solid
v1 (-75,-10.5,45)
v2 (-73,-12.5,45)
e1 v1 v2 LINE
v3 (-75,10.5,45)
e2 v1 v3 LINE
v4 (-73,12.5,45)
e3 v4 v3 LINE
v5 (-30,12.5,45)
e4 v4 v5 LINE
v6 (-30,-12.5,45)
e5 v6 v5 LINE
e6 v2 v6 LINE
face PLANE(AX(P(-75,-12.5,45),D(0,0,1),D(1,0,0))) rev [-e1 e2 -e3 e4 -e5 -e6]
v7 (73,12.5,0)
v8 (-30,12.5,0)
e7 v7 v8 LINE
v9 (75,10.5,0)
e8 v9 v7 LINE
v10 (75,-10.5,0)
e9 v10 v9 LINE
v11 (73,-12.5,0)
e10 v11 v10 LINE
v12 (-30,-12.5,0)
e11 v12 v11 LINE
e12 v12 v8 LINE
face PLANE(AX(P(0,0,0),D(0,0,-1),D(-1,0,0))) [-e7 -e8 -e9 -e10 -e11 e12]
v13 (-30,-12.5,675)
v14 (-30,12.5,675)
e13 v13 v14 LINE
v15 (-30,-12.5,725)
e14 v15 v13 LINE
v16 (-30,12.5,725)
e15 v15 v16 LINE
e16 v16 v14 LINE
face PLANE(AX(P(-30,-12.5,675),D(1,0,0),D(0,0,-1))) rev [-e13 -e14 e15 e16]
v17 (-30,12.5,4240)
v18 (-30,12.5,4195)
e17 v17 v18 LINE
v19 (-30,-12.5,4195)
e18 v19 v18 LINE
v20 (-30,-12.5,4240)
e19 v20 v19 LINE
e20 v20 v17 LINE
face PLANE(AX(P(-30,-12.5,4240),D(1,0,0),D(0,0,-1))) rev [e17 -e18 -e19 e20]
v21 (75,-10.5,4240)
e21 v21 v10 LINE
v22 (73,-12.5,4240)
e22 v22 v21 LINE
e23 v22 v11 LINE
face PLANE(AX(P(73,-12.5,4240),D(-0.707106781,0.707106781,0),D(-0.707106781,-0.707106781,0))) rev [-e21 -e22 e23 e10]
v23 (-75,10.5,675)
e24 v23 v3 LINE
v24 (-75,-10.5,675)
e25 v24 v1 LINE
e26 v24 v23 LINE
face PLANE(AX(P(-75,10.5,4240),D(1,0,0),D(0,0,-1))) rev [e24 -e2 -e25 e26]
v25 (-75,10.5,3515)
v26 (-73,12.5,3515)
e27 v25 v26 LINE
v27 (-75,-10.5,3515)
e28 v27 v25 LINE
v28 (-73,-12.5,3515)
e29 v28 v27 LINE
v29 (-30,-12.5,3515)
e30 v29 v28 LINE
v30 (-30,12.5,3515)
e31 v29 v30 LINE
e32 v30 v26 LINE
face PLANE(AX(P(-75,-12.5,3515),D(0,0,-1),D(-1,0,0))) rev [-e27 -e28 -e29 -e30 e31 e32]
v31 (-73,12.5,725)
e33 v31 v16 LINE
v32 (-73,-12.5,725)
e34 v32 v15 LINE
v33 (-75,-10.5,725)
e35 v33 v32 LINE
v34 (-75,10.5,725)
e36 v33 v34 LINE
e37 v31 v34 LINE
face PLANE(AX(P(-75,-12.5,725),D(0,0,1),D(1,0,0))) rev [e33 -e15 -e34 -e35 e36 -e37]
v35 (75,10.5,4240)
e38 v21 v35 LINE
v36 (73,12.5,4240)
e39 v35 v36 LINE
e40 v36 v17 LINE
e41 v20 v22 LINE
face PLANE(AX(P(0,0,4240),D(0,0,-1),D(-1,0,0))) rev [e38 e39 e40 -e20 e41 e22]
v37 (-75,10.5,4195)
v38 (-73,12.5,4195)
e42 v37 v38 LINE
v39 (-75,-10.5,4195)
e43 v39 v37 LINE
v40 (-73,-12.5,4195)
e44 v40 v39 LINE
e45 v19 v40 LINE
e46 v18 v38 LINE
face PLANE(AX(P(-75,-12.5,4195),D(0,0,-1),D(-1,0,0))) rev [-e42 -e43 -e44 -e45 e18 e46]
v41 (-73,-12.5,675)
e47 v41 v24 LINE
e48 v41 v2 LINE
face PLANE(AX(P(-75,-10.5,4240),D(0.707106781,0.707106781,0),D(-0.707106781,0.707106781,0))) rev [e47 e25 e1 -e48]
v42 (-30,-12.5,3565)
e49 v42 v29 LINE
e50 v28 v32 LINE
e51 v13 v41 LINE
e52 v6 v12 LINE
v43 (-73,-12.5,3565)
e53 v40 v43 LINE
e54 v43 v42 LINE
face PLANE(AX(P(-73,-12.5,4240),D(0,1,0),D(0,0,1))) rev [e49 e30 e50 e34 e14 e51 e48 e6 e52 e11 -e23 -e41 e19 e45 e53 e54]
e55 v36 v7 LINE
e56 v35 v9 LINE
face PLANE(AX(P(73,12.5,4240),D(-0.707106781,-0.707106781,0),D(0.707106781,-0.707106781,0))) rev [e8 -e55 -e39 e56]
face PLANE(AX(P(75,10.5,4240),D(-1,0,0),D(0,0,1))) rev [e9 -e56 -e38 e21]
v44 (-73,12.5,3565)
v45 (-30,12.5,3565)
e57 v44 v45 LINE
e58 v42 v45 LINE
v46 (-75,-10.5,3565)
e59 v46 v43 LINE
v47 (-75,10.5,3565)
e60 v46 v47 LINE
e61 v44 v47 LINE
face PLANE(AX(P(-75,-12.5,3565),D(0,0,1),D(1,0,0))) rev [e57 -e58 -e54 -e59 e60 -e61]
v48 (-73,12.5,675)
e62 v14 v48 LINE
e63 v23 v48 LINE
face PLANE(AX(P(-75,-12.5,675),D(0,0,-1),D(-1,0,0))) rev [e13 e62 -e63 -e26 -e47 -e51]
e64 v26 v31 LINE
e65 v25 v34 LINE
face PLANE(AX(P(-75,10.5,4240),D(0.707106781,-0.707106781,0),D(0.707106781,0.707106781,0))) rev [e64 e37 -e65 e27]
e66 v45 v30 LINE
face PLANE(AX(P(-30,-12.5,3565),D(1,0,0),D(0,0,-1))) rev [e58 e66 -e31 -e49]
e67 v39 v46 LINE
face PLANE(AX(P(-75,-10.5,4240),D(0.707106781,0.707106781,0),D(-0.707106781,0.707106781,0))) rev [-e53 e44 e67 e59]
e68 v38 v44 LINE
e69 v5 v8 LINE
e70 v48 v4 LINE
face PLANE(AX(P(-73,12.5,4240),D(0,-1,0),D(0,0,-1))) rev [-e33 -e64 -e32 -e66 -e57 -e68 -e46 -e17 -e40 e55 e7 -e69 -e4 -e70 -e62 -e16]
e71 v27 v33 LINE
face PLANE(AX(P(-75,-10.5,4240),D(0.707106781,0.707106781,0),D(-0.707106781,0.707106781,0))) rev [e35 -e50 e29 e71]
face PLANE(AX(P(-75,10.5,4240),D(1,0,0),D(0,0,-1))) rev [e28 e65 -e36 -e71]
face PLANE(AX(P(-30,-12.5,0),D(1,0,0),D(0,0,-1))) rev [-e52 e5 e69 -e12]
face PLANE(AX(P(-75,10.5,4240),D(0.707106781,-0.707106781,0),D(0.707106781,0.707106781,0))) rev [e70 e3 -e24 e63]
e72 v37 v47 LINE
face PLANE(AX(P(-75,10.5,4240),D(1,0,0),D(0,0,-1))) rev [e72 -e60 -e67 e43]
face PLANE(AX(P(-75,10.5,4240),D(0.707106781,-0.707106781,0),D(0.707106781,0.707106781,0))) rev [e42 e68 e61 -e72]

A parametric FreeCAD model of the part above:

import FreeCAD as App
import Part
import Sketcher
from FreeCAD import Vector

doc = App.newDocument("Part")
body = doc.addObject("PartDesign::Body", "Body")

# Sketch on XY plane
sketch1 = doc.addObject("Sketcher::SketchObject", "Sketch")
body.addObject(sketch1)
sketch1.AttachmentSupport = (doc.XY_Plane, [""])
sketch1.MapMode = "FlatFace"
sketch1.addGeometry([
    Part.LineSegment(Vector(-73, 12.5, 0), Vector(-75, 10.5, 0)),  # 0
    Part.LineSegment(Vector(-75, 10.5, 0), Vector(-75, -10.5, 0)),  # 1
    Part.LineSegment(Vector(-75, -10.5, 0), Vector(-73, -12.5, 0)),  # 2
    Part.LineSegment(Vector(-73, -12.5, 0), Vector(73, -12.5, 0)),  # 3
    Part.LineSegment(Vector(73, -12.5, 0), Vector(75, -10.5, 0)),  # 4
    Part.LineSegment(Vector(75, -10.5, 0), Vector(75, 10.5, 0)),  # 5
    Part.LineSegment(Vector(75, 10.5, 0), Vector(73, 12.5, 0)),  # 6
    Part.LineSegment(Vector(73, 12.5, 0), Vector(-73, 12.5, 0)),  # 7
], False)
sketch1.addConstraint([
    Sketcher.Constraint("Coincident", 0, 2, 1, 1),
    Sketcher.Constraint("Coincident", 1, 2, 2, 1),
    Sketcher.Constraint("Coincident", 2, 2, 3, 1),
    Sketcher.Constraint("Coincident", 3, 2, 4, 1),
    Sketcher.Constraint("Coincident", 4, 2, 5, 1),
    Sketcher.Constraint("Coincident", 5, 2, 6, 1),
    Sketcher.Constraint("Coincident", 6, 2, 7, 1),
    Sketcher.Constraint("Coincident", 7, 2, 0, 1),
    Sketcher.Constraint("Vertical", 1),
    Sketcher.Constraint("Horizontal", 3),
    Sketcher.Constraint("Vertical", 5),
    Sketcher.Constraint("Horizontal", 7),
    Sketcher.Constraint("Symmetric", 0, 2, 4, 2, -1, 1),
    Sketcher.Constraint("Symmetric", 2, 2, 6, 2, -1, 1),
    Sketcher.Constraint("Perpendicular", 0, 2),
    Sketcher.Constraint("Perpendicular", 2, 4),
    Sketcher.Constraint("Perpendicular", 4, 6),
    Sketcher.Constraint("Horizontal", 1, 2, 4, 2),
    Sketcher.Constraint("Vertical", 3, 2, 6, 2),
    Sketcher.Constraint("DistanceX", 3, 1, 3, 2, 146.0),
    Sketcher.Constraint("DistanceY", 1, 2, 1, 1, 21.0),
    Sketcher.Constraint("DistanceX", 0, 2, -1, 1, 75.0),
])
pad1 = doc.addObject("PartDesign::Pad", "Pad")
body.addObject(pad1)
pad1.Profile = sketch1
pad1.Length = 4240

# Sketch on XZ plane
sketch2 = doc.addObject("Sketcher::SketchObject", "Sketch001")
body.addObject(sketch2)
sketch2.AttachmentSupport = (doc.XZ_Plane, [""])
sketch2.MapMode = "FlatFace"
sketch2.AttachmentOffset = App.Placement(Vector(0, 0, -12.5), App.Rotation())
sketch2.addGeometry([
    Part.LineSegment(Vector(-75, 0, 0), Vector(-75, 45, 0)),  # 0
    Part.LineSegment(Vector(-75, 45, 0), Vector(-30, 45, 0)),  # 1
    Part.LineSegment(Vector(-30, 45, 0), Vector(-30, 0, 0)),  # 2
    Part.LineSegment(Vector(-30, 0, 0), Vector(-75, 0, 0)),  # 3
    Part.LineSegment(Vector(-75, 4195, 0), Vector(-75, 4240, 0)),  # 4
    Part.LineSegment(Vector(-75, 4240, 0), Vector(-30, 4240, 0)),  # 5
    Part.LineSegment(Vector(-30, 4240, 0), Vector(-30, 4195, 0)),  # 6
    Part.LineSegment(Vector(-30, 4195, 0), Vector(-75, 4195, 0)),  # 7
    Part.LineSegment(Vector(-75, 675, 0), Vector(-75, 725, 0)),  # 8
    Part.LineSegment(Vector(-75, 725, 0), Vector(-30, 725, 0)),  # 9
    Part.LineSegment(Vector(-30, 725, 0), Vector(-30, 675, 0)),  # 10
    Part.LineSegment(Vector(-30, 675, 0), Vector(-75, 675, 0)),  # 11
    Part.LineSegment(Vector(-75, 3515, 0), Vector(-75, 3565, 0)),  # 12
    Part.LineSegment(Vector(-75, 3565, 0), Vector(-30, 3565, 0)),  # 13
    Part.LineSegment(Vector(-30, 3565, 0), Vector(-30, 3515, 0)),  # 14
    Part.LineSegment(Vector(-30, 3515, 0), Vector(-75, 3515, 0)),  # 15
], False)
sketch2.addConstraint([
    Sketcher.Constraint("Coincident", 0, 2, 1, 1),
    Sketcher.Constraint("Coincident", 1, 2, 2, 1),
    Sketcher.Constraint("Coincident", 2, 2, 3, 1),
    Sketcher.Constraint("Coincident", 3, 2, 0, 1),
    Sketcher.Constraint("Coincident", 4, 2, 5, 1),
    Sketcher.Constraint("Coincident", 5, 2, 6, 1),
    Sketcher.Constraint("Coincident", 6, 2, 7, 1),
    Sketcher.Constraint("Coincident", 7, 2, 4, 1),
    Sketcher.Constraint("Coincident", 8, 2, 9, 1),
    Sketcher.Constraint("Coincident", 9, 2, 10, 1),
    Sketcher.Constraint("Coincident", 10, 2, 11, 1),
    Sketcher.Constraint("Coincident", 11, 2, 8, 1),
    Sketcher.Constraint("Coincident", 12, 2, 13, 1),
    Sketcher.Constraint("Coincident", 13, 2, 14, 1),
    Sketcher.Constraint("Coincident", 14, 2, 15, 1),
    Sketcher.Constraint("Coincident", 15, 2, 12, 1),
    Sketcher.Constraint("Vertical", 0),
    Sketcher.Constraint("Horizontal", 1),
    Sketcher.Constraint("Vertical", 2),
    Sketcher.Constraint("Horizontal", 3),
    Sketcher.Constraint("Vertical", 4),
    Sketcher.Constraint("Horizontal", 5),
    Sketcher.Constraint("Vertical", 6),
    Sketcher.Constraint("Horizontal", 7),
    Sketcher.Constraint("Vertical", 8),
    Sketcher.Constraint("Horizontal", 9),
    Sketcher.Constraint("Vertical", 10),
    Sketcher.Constraint("Horizontal", 11),
    Sketcher.Constraint("Vertical", 12),
    Sketcher.Constraint("Horizontal", 13),
    Sketcher.Constraint("Vertical", 14),
    Sketcher.Constraint("Horizontal", 15),
    Sketcher.Constraint("PointOnObject", 2, 2, -1),
    Sketcher.Constraint("Vertical", 3, 2, 4, 2),
    Sketcher.Constraint("Vertical", 2, 2, 5, 2),
    Sketcher.Constraint("Vertical", 7, 2, 8, 2),
    Sketcher.Constraint("Vertical", 6, 2, 9, 2),
    Sketcher.Constraint("Vertical", 11, 2, 12, 2),
    Sketcher.Constraint("Vertical", 10, 2, 13, 2),
    Sketcher.Constraint("Equal", 15, 0),
    Sketcher.Constraint("Equal", 2, 4),
    Sketcher.Constraint("Equal", 10, 12),
    Sketcher.Constraint("DistanceX", 1, 1, 1, 2, 45.0),
    Sketcher.Constraint("DistanceY", 8, 1, 8, 2, 50.0),
    Sketcher.Constraint("DistanceX", 0, 2, -1, 1, 75.0),
    Sketcher.Constraint("DistanceY", -1, 1, 4, 2, 4240.0),
    Sketcher.Constraint("DistanceY", -1, 1, 8, 2, 725.0),
    Sketcher.Constraint("DistanceY", -1, 1, 12, 2, 3565.0),
])
pocket1 = doc.addObject("PartDesign::Pocket", "Pocket")
body.addObject(pocket1)
pocket1.Profile = sketch2
pocket1.Type = "ThroughAll"
pocket1.Reversed = True

doc.recompute()
